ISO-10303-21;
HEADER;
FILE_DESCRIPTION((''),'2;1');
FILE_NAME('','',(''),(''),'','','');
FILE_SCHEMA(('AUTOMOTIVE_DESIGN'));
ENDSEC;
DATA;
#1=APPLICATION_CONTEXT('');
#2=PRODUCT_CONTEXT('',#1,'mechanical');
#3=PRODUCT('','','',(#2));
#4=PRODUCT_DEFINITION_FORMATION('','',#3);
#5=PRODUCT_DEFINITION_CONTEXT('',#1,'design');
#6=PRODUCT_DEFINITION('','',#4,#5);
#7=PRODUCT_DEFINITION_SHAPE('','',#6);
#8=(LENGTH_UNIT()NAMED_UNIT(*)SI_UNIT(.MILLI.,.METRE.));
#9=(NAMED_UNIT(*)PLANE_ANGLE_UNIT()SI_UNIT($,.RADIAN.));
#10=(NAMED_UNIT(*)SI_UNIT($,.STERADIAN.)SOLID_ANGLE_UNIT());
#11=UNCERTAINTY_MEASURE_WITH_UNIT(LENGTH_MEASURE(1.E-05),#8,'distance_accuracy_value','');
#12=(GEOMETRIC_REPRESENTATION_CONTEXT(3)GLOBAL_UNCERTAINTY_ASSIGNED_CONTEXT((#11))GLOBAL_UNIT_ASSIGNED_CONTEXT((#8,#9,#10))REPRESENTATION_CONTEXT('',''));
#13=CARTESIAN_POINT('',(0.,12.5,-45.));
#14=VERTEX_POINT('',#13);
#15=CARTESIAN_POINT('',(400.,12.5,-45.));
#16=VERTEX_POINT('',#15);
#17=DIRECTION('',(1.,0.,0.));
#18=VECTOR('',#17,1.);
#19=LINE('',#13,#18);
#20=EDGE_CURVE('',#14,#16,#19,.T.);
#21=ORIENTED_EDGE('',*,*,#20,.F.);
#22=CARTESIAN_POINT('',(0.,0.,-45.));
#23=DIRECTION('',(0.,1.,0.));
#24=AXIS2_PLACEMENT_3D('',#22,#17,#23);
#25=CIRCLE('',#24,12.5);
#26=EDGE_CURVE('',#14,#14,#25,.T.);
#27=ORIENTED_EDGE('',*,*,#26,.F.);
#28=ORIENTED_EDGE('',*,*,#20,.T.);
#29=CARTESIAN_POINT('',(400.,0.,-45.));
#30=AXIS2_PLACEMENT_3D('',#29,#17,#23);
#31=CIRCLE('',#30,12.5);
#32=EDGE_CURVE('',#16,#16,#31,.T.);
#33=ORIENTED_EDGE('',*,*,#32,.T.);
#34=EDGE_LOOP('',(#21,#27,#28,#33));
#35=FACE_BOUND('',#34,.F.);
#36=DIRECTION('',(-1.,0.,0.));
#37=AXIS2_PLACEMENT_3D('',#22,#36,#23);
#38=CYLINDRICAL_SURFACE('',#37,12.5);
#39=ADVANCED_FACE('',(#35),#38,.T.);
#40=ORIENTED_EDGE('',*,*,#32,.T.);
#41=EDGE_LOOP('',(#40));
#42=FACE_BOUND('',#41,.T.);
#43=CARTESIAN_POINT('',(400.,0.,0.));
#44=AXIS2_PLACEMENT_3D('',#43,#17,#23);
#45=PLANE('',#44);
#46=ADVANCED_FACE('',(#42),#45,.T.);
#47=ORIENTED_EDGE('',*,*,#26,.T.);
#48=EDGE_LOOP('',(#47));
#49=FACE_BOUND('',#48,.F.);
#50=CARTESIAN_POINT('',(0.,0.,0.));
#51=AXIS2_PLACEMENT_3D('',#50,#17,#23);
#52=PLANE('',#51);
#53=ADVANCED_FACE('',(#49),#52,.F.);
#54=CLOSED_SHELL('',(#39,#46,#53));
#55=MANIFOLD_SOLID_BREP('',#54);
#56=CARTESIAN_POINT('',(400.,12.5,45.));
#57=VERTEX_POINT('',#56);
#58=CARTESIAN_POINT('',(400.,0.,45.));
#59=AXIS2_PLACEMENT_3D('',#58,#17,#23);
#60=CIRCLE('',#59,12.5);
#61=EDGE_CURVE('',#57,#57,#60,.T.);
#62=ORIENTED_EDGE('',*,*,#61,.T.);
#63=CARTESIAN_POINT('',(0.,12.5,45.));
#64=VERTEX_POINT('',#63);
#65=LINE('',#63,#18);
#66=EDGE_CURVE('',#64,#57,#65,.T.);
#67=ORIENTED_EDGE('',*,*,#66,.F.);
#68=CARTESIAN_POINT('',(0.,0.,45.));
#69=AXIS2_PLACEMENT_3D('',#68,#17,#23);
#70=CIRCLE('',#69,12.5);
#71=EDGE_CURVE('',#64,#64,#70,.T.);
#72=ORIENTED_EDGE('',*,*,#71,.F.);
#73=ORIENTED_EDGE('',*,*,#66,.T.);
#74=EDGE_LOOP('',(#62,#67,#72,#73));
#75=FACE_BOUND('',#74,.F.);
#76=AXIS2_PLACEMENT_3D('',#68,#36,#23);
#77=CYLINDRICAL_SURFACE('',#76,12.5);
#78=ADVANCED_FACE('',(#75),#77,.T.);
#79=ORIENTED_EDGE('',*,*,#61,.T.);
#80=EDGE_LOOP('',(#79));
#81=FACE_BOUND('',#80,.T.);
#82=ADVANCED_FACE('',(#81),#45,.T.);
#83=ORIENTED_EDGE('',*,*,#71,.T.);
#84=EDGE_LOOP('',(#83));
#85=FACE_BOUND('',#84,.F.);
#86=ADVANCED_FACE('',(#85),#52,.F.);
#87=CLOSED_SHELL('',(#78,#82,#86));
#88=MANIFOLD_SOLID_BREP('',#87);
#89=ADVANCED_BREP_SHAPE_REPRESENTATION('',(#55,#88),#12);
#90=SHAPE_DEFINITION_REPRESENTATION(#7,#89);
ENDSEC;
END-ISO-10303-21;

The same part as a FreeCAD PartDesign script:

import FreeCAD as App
import Part
import Sketcher
from FreeCAD import Vector
Q = App.Units.Quantity

doc = App.newDocument("Part")
params = doc.addObject("Spreadsheet::Sheet", "Params")
for row, (alias, value) in enumerate([
    ("sketch1_diameter", "25 mm"),
    ("pad1_length", "400 mm"),
], start=1):
    params.set(f"A{row}", alias)
    params.set(f"B{row}", "=" + value)
    params.setAlias(f"B{row}", alias)

body = doc.addObject("PartDesign::Body", "Body")
body.AllowCompound = True

sketch1 = doc.addObject("Sketcher::SketchObject", "Sketch")
body.addObject(sketch1)
sketch1.AttachmentSupport = (doc.YZ_Plane, [""])
sketch1.MapMode = "FlatFace"
sketch1.addGeometry([
    Part.Circle(Vector(0, 45, 0), Vector(0, 0, 1), 12.5),
    Part.Circle(Vector(0, -45, 0), Vector(0, 0, 1), 12.5),
], False)
sketch1.addConstraint([
    Sketcher.Constraint("Equal", 0, 1),
    Sketcher.Constraint("Symmetric", 0, 3, 1, 3, -1, 1),
    Sketcher.Constraint("PointOnObject", 0, 3, -2),
    Sketcher.Constraint("Diameter", 0, Q("25 mm")),
    Sketcher.Constraint("DistanceY", -1, 1, 0, 3, Q("45 mm")),
])
sketch1.setExpression("Constraints[3]", "Params.sketch1_diameter")
pad1 = doc.addObject("PartDesign::Pad", "Pad")
body.addObject(pad1)
pad1.Profile = sketch1
pad1.setExpression("Length", "Params.pad1_length")

doc.recompute()
